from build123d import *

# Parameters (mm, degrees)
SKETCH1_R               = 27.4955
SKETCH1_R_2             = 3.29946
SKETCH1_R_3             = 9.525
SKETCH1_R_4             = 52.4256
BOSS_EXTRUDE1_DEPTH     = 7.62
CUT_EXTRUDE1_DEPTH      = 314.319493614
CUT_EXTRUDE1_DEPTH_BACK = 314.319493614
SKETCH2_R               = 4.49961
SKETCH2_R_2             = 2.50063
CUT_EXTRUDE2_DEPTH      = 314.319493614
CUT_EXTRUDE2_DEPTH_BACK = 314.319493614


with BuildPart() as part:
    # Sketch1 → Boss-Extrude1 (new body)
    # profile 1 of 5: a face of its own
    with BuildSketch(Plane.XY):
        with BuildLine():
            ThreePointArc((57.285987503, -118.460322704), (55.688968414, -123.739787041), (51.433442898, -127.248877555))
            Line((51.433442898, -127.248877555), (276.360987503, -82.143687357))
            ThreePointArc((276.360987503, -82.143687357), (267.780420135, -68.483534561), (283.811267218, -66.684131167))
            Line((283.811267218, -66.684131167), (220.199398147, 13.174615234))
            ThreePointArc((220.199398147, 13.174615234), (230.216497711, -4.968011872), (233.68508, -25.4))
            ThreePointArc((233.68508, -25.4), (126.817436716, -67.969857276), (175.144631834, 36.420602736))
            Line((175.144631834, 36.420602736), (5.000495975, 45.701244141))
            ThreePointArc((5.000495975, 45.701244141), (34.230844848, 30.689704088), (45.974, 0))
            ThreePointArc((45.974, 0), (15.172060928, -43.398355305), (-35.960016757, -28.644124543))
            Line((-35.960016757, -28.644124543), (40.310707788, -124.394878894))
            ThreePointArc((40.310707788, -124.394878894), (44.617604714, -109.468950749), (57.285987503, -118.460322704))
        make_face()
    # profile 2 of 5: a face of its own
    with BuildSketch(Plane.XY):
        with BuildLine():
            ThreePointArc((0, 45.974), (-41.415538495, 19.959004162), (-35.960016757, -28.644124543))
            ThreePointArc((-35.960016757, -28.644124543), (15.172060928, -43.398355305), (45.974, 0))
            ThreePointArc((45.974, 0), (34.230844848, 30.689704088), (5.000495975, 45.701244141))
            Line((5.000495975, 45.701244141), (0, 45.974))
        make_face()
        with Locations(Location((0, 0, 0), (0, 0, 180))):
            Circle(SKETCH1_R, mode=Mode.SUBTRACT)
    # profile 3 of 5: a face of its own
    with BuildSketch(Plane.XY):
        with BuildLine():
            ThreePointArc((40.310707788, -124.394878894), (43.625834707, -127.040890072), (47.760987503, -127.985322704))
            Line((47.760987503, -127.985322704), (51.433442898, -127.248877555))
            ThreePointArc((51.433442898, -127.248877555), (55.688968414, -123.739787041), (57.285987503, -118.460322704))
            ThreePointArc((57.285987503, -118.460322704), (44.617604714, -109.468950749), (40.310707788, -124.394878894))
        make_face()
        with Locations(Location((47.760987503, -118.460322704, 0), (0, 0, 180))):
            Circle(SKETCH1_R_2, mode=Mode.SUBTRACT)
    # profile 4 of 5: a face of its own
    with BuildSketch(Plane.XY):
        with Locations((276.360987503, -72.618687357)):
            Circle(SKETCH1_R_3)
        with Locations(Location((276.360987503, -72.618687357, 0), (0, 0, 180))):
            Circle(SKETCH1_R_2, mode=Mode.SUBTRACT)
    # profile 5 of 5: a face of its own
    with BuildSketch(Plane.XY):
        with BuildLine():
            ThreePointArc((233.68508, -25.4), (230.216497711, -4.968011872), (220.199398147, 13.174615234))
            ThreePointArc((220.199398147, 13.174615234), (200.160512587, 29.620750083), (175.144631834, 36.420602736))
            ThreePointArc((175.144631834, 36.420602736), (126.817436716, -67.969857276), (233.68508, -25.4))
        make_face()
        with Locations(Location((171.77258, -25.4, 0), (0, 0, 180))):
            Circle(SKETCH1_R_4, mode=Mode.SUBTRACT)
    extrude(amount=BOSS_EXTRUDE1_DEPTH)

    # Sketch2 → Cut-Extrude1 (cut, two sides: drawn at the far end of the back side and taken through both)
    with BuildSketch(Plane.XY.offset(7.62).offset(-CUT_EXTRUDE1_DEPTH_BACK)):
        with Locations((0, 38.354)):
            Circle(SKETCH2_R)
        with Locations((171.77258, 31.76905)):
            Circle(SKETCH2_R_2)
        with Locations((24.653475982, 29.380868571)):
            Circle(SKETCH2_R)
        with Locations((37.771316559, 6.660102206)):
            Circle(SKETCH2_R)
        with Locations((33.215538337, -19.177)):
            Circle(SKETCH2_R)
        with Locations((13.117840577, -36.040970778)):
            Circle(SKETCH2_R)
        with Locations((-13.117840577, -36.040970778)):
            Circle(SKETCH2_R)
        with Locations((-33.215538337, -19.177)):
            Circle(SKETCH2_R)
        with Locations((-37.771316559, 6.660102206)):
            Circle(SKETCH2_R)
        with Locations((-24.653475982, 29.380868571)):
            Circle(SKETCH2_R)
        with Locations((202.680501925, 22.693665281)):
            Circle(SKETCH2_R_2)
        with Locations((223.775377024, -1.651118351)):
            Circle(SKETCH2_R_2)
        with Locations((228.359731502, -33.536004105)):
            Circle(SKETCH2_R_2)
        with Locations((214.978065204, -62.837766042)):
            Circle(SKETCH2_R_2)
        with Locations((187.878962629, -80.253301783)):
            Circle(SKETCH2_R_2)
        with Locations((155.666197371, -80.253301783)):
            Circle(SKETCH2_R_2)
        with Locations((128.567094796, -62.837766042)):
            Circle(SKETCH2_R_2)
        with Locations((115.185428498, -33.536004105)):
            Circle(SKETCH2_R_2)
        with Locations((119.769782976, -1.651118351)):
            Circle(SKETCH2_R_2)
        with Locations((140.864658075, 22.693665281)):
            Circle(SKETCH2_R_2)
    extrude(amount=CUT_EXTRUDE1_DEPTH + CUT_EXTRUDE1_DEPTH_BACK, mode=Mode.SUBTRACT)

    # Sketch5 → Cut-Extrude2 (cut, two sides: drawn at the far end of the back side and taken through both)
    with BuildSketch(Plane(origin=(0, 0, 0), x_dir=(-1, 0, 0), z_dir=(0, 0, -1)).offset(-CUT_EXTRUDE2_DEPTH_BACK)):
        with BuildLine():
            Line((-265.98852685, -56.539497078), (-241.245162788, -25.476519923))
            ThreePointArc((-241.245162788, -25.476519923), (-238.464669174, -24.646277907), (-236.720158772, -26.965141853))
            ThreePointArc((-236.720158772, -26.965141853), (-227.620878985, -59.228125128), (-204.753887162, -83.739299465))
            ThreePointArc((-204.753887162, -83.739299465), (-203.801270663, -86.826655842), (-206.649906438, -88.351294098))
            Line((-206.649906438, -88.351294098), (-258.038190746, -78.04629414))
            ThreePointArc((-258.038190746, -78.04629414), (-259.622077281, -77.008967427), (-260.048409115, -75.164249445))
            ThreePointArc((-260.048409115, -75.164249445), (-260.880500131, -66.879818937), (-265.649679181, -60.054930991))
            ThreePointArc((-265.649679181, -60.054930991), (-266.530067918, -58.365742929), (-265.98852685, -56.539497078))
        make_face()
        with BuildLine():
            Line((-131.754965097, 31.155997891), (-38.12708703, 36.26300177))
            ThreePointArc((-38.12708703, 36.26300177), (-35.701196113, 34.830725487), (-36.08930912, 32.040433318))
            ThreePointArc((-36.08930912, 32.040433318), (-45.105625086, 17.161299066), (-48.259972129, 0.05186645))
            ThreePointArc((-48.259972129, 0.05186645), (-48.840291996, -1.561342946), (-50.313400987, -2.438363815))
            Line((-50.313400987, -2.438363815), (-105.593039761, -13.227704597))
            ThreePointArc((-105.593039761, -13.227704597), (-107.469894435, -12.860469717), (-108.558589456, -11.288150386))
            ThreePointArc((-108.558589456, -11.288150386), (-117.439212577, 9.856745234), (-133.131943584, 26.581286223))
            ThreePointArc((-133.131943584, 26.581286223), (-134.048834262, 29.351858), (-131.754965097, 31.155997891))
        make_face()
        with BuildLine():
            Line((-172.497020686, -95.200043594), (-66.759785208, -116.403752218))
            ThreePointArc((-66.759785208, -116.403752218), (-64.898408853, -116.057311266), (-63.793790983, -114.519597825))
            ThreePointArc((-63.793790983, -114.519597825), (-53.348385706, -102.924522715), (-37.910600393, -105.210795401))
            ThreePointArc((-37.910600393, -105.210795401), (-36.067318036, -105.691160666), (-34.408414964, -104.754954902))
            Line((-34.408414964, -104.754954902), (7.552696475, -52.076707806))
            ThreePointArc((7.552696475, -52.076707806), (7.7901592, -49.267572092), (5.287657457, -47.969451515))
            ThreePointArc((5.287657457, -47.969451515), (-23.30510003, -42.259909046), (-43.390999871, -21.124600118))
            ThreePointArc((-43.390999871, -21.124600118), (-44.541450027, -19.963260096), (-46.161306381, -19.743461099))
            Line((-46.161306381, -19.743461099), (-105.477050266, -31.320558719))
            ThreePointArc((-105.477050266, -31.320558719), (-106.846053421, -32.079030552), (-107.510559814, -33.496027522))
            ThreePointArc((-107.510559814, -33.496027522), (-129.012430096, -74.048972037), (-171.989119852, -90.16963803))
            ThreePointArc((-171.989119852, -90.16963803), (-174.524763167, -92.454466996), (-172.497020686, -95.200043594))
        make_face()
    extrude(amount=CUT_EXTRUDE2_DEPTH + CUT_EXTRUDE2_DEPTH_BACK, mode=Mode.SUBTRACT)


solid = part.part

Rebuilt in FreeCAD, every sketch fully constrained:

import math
import FreeCAD as App
import Part
import Sketcher
Q = App.Units.Quantity

doc = App.newDocument("Part")
body = doc.addObject("PartDesign::Body", "Body")

# Sketch on XY plane
sketch1 = doc.addObject("Sketcher::SketchObject", "Sketch")
body.addObject(sketch1)
sketch1.AttachmentSupport = (doc.XY_Plane, [""])
sketch1.MapMode = "FlatFace"
sketch1.addGeometry(Part.LineSegment(App.Vector(51.433443, -127.248878, 0), App.Vector(276.360988, -82.143687, 0)), False)
sketch1.addGeometry(Part.ArcOfCircle(Part.Circle(App.Vector(276.360988, -72.618687, 0), App.Vector(0, 0, 1), 9.525), math.radians(-90), math.radians(38.539243)), False)
sketch1.addGeometry(Part.LineSegment(App.Vector(283.811267, -66.684131, 0), App.Vector(220.199398, 13.174615, 0)), False)
sketch1.addGeometry(Part.ArcOfCircle(Part.Circle(App.Vector(171.77258, -25.4, 0), App.Vector(0, 0, 1), 61.9125), math.radians(38.539243), math.radians(86.877852)), False)
sketch1.addGeometry(Part.LineSegment(App.Vector(175.144632, 36.420603, 0), App.Vector(5.000496, 45.701244, 0)), False)
sketch1.addGeometry(Part.LineSegment(App.Vector(5.000496, 45.701244, 0), App.Vector(0, 45.974, 0)), False)
sketch1.addGeometry(Part.ArcOfCircle(Part.Circle(App.Vector(0, 0, 0), App.Vector(0, 0, 1), 45.974), math.radians(90), math.radians(218.539243)), False)
sketch1.addGeometry(Part.LineSegment(App.Vector(-35.960017, -28.644125, 0), App.Vector(40.310708, -124.394879, 0)), False)
sketch1.addGeometry(Part.ArcOfCircle(Part.Circle(App.Vector(47.760988, -118.460323, 0), App.Vector(0, 0, 1), 9.525), math.radians(-141.460757), math.radians(-90)), False)
sketch1.addGeometry(Part.LineSegment(App.Vector(47.760988, -127.985323, 0), App.Vector(51.433443, -127.248878, 0)), False)
sketch1.addGeometry(Part.Circle(App.Vector(47.760988, -118.460323, 0), App.Vector(0, 0, 1), 3.29946), False)
sketch1.addGeometry(Part.Circle(App.Vector(276.360988, -72.618687, 0), App.Vector(0, 0, 1), 3.29946), False)
sketch1.addGeometry(Part.Circle(App.Vector(171.77258, -25.4, 0), App.Vector(0, 0, 1), 52.4256), False)
sketch1.addGeometry(Part.Circle(App.Vector(0, 0, 0), App.Vector(0, 0, 1), 27.4955), False)
sketch1.addConstraint(Sketcher.Constraint("Coincident", 0, 2, 1, 1))
sketch1.addConstraint(Sketcher.Constraint("Tangent", 1, 2, 2, 1))
sketch1.addConstraint(Sketcher.Constraint("Tangent", 2, 2, 3, 1))
sketch1.addConstraint(Sketcher.Constraint("Tangent", 3, 2, 4, 1))
sketch1.addConstraint(Sketcher.Constraint("Coincident", 4, 2, 5, 1))
sketch1.addConstraint(Sketcher.Constraint("Coincident", 5, 2, 6, 1))
sketch1.addConstraint(Sketcher.Constraint("Tangent", 6, 2, 7, 1))
sketch1.addConstraint(Sketcher.Constraint("Tangent", 7, 2, 8, 1))
sketch1.addConstraint(Sketcher.Constraint("Coincident", 8, 2, 9, 1))
sketch1.addConstraint(Sketcher.Constraint("Coincident", 9, 2, 0, 1))
sketch1.addConstraint(Sketcher.Constraint("Coincident", 6, 3, -1, 1))
sketch1.addConstraint(Sketcher.Constraint("Coincident", 13, 3, -1, 1))
sketch1.addConstraint(Sketcher.Constraint("Coincident", 10, 3, 8, 3))
sketch1.addConstraint(Sketcher.Constraint("Coincident", 11, 3, 1, 3))
sketch1.addConstraint(Sketcher.Constraint("Coincident", 12, 3, 3, 3))
sketch1.addConstraint(Sketcher.Constraint("Equal", 1, 8))
sketch1.addConstraint(Sketcher.Constraint("Equal", 10, 11))
sketch1.addConstraint(Sketcher.Constraint("PointOnObject", 5, 2, -2))
sketch1.addConstraint(Sketcher.Constraint("Parallel", 4, 5))
sketch1.addConstraint(Sketcher.Constraint("Parallel", 2, 7))
sketch1.addConstraint(Sketcher.Constraint("Parallel", 0, 9))
sketch1.addConstraint(Sketcher.Constraint("Vertical", 11, 3, 0, 2))
sketch1.addConstraint(Sketcher.Constraint("Vertical", 10, 3, 8, 2))
sketch1.addConstraint(Sketcher.Constraint("Radius", 6, Q("1.81 in")))
sketch1.addConstraint(Sketcher.Constraint("Diameter", 12, Q("4.128 in")))
sketch1.addConstraint(Sketcher.Constraint("Diameter", 13, Q("2.165 in")))
sketch1.addConstraint(Sketcher.Constraint("DistanceY", 3, 3, -1, 1, Q("1 in")))
sketch1.addConstraint(Sketcher.Constraint("Radius", 1, Q("0.375 in")))
sketch1.addConstraint(Sketcher.Constraint("Radius", 3, Q("2.4375 in")))
sketch1.addConstraint(Sketcher.Constraint("DistanceX", 8, 3, 1, 3, Q("9 in")))
sketch1.addConstraint(Sketcher.Constraint("Diameter", 10, Q("0.2598 in")))
sketch1.addConstraint(Sketcher.Constraint("DistanceX", -1, 1, 3, 3, Q("6.7627 in")))
sketch1.addConstraint(Sketcher.Constraint("DistanceX", -1, 1, 2, 2, Q("220.199398 mm")))
sketch1.addConstraint(Sketcher.Constraint("DistanceY", 8, 3, 6, 2, Q("89.816198 mm")))
sketch1.addConstraint(Sketcher.Constraint("DistanceY", 9, 2, 7, 2, Q("2.853999 mm")))
sketch1.addConstraint(Sketcher.Constraint("Distance", 5, Q("5.007929 mm")))
pad1 = doc.addObject("PartDesign::Pad", "Pad")
body.addObject(pad1)
pad1.Profile = sketch1
pad1.Length = Q("0.3 in")

# Sketch on XY plane
sketch2 = doc.addObject("Sketcher::SketchObject", "Sketch001")
body.addObject(sketch2)
sketch2.AttachmentSupport = (doc.XY_Plane, [""])
sketch2.MapMode = "FlatFace"
sketch2.AttachmentOffset = App.Placement(App.Vector(0, 0, 0.3 * 25.4), App.Rotation())
sketch2.addGeometry(Part.Circle(App.Vector(0, 38.354, 0), App.Vector(0, 0, 1), 4.49961), False)
sketch2.addGeometry(Part.Circle(App.Vector(171.77258, 31.76905, 0), App.Vector(0, 0, 1), 2.50063), False)
sketch2.addGeometry(Part.Circle(App.Vector(24.653476, 29.380869, 0), App.Vector(0, 0, 1), 4.49961), False)
sketch2.addGeometry(Part.Circle(App.Vector(37.771317, 6.660102, 0), App.Vector(0, 0, 1), 4.49961), False)
sketch2.addGeometry(Part.Circle(App.Vector(33.215538, -19.177, 0), App.Vector(0, 0, 1), 4.49961), False)
sketch2.addGeometry(Part.Circle(App.Vector(13.117841, -36.040971, 0), App.Vector(0, 0, 1), 4.49961), False)
sketch2.addGeometry(Part.Circle(App.Vector(-13.117841, -36.040971, 0), App.Vector(0, 0, 1), 4.49961), False)
sketch2.addGeometry(Part.Circle(App.Vector(-33.215538, -19.177, 0), App.Vector(0, 0, 1), 4.49961), False)
sketch2.addGeometry(Part.Circle(App.Vector(-37.771317, 6.660102, 0), App.Vector(0, 0, 1), 4.49961), False)
sketch2.addGeometry(Part.Circle(App.Vector(-24.653476, 29.380869, 0), App.Vector(0, 0, 1), 4.49961), False)
sketch2.addGeometry(Part.Circle(App.Vector(202.680502, 22.693665, 0), App.Vector(0, 0, 1), 2.50063), False)
sketch2.addGeometry(Part.Circle(App.Vector(223.775377, -1.651118, 0), App.Vector(0, 0, 1), 2.50063), False)
sketch2.addGeometry(Part.Circle(App.Vector(228.359732, -33.536004, 0), App.Vector(0, 0, 1), 2.50063), False)
sketch2.addGeometry(Part.Circle(App.Vector(214.978065, -62.837766, 0), App.Vector(0, 0, 1), 2.50063), False)
sketch2.addGeometry(Part.Circle(App.Vector(187.878963, -80.253302, 0), App.Vector(0, 0, 1), 2.50063), False)
sketch2.addGeometry(Part.Circle(App.Vector(155.666197, -80.253302, 0), App.Vector(0, 0, 1), 2.50063), False)
sketch2.addGeometry(Part.Circle(App.Vector(128.567095, -62.837766, 0), App.Vector(0, 0, 1), 2.50063), False)
sketch2.addGeometry(Part.Circle(App.Vector(115.185428, -33.536004, 0), App.Vector(0, 0, 1), 2.50063), False)
sketch2.addGeometry(Part.Circle(App.Vector(119.769783, -1.651118, 0), App.Vector(0, 0, 1), 2.50063), False)
sketch2.addGeometry(Part.Circle(App.Vector(140.864658, 22.693665, 0), App.Vector(0, 0, 1), 2.50063), False)
sketch2.addConstraint(Sketcher.Constraint("Equal", 0, 2))
sketch2.addConstraint(Sketcher.Constraint("Equal", 2, 3))
sketch2.addConstraint(Sketcher.Constraint("Equal", 3, 4))
sketch2.addConstraint(Sketcher.Constraint("Equal", 4, 5))
sketch2.addConstraint(Sketcher.Constraint("Equal", 5, 6))
sketch2.addConstraint(Sketcher.Constraint("Equal", 6, 7))
sketch2.addConstraint(Sketcher.Constraint("Equal", 7, 8))
sketch2.addConstraint(Sketcher.Constraint("Equal", 8, 9))
sketch2.addConstraint(Sketcher.Constraint("Equal", 1, 10))
sketch2.addConstraint(Sketcher.Constraint("Equal", 10, 11))
sketch2.addConstraint(Sketcher.Constraint("Equal", 11, 12))
sketch2.addConstraint(Sketcher.Constraint("Equal", 12, 13))
sketch2.addConstraint(Sketcher.Constraint("Equal", 13, 14))
sketch2.addConstraint(Sketcher.Constraint("Equal", 14, 15))
sketch2.addConstraint(Sketcher.Constraint("Equal", 15, 16))
sketch2.addConstraint(Sketcher.Constraint("Equal", 16, 17))
sketch2.addConstraint(Sketcher.Constraint("Equal", 17, 18))
sketch2.addConstraint(Sketcher.Constraint("Equal", 18, 19))
sketch2.addConstraint(Sketcher.Constraint("Symmetric", 5, 3, 6, 3, -2))
sketch2.addConstraint(Sketcher.Constraint("Symmetric", 4, 3, 7, 3, -2))
sketch2.addConstraint(Sketcher.Constraint("Symmetric", 3, 3, 8, 3, -2))
sketch2.addConstraint(Sketcher.Constraint("Symmetric", 2, 3, 9, 3, -2))
sketch2.addConstraint(Sketcher.Constraint("PointOnObject", 0, 3, -2))
sketch2.addConstraint(Sketcher.Constraint("Horizontal", 14, 3, 15, 3))
sketch2.addConstraint(Sketcher.Constraint("Horizontal", 13, 3, 16, 3))
sketch2.addConstraint(Sketcher.Constraint("Horizontal", 12, 3, 17, 3))
sketch2.addConstraint(Sketcher.Constraint("Horizontal", 11, 3, 18, 3))
sketch2.addConstraint(Sketcher.Constraint("Horizontal", 10, 3, 19, 3))
sketch2.addConstraint(Sketcher.Constraint("Diameter", 0, Q("0.3543 in")))
sketch2.addConstraint(Sketcher.Constraint("Diameter", 1, Q("0.1969 in")))
sketch2.addConstraint(Sketcher.Constraint("DistanceY", -1, 1, 0, 3, Q("1.51 in")))
sketch2.addConstraint(Sketcher.Constraint("DistanceY", 4, 3, -1, 1, Q("0.755 in")))
sketch2.addConstraint(Sketcher.Constraint("DistanceX", -1, 1, 1, 3, Q("6.7627 in")))
sketch2.addConstraint(Sketcher.Constraint("DistanceX", -1, 1, 10, 3, Q("202.680502 mm")))
sketch2.addConstraint(Sketcher.Constraint("DistanceY", 14, 3, -1, 1, Q("80.253302 mm")))
sketch2.addConstraint(Sketcher.Constraint("DistanceX", 2, 3, 11, 3, Q("199.121901 mm")))
sketch2.addConstraint(Sketcher.Constraint("DistanceY", -1, 1, 1, 3, Q("31.76905 mm")))
sketch2.addConstraint(Sketcher.Constraint("DistanceY", -1, 1, 2, 3, Q("29.380869 mm")))
sketch2.addConstraint(Sketcher.Constraint("DistanceX", -1, 1, 4, 3, Q("33.215538 mm")))
sketch2.addConstraint(Sketcher.Constraint("DistanceX", -1, 1, 5, 3, Q("13.117841 mm")))
sketch2.addConstraint(Sketcher.Constraint("DistanceY", 5, 3, -1, 1, Q("36.040971 mm")))
sketch2.addConstraint(Sketcher.Constraint("DistanceY", 11, 3, -1, 1, Q("1.651118 mm")))
sketch2.addConstraint(Sketcher.Constraint("DistanceX", -1, 1, 12, 3, Q("228.359732 mm")))
sketch2.addConstraint(Sketcher.Constraint("DistanceX", -1, 1, 17, 3, Q("115.185428 mm")))
sketch2.addConstraint(Sketcher.Constraint("DistanceX", -1, 1, 19, 3, Q("140.864658 mm")))
sketch2.addConstraint(Sketcher.Constraint("DistanceX", 2, 3, 3, 3, Q("13.117841 mm")))
sketch2.addConstraint(Sketcher.Constraint("DistanceX", 4, 3, 3, 3, Q("4.555778 mm")))
sketch2.addConstraint(Sketcher.Constraint("DistanceY", 11, 3, 3, 3, Q("8.311221 mm")))
sketch2.addConstraint(Sketcher.Constraint("DistanceY", 12, 3, 10, 3, Q("56.229669 mm")))
sketch2.addConstraint(Sketcher.Constraint("DistanceY", 13, 3, 12, 3, Q("29.301762 mm")))
sketch2.addConstraint(Sketcher.Constraint("DistanceX", 13, 3, 11, 3, Q("8.797312 mm")))
sketch2.addConstraint(Sketcher.Constraint("DistanceX", 14, 3, 12, 3, Q("40.480769 mm")))
sketch2.addConstraint(Sketcher.Constraint("DistanceX", 15, 3, 11, 3, Q("68.10918 mm")))
sketch2.addConstraint(Sketcher.Constraint("DistanceX", 16, 3, 13, 3, Q("86.41097 mm")))
sketch2.addConstraint(Sketcher.Constraint("DistanceX", 18, 3, 16, 3, Q("8.797312 mm")))
sketch2.addConstraint(Sketcher.Constraint("DistanceY", -1, 1, 10, 3, Q("22.693665 mm")))
pocket1 = doc.addObject("PartDesign::Pocket", "Pocket")
body.addObject(pocket1)
pocket1.Profile = sketch2
pocket1.Type = "ThroughAll"
pocket1.Midplane = True

# Sketch on XY plane
sketch3 = doc.addObject("Sketcher::SketchObject", "Sketch002")
body.addObject(sketch3)
sketch3.AttachmentSupport = (doc.XY_Plane, [""])
sketch3.MapMode = "FlatFace"
sketch3.addGeometry(Part.LineSegment(App.Vector(241.245163, -25.47652, 0), App.Vector(265.988527, -56.539497, 0)), False)
sketch3.addGeometry(Part.ArcOfCircle(Part.Circle(App.Vector(264.001786, -58.122045, 0), App.Vector(0, 0, 1), 2.54), math.radians(-49.550544), math.radians(38.539243)), False)
sketch3.addGeometry(Part.ArcOfCircle(Part.Circle(App.Vector(276.360987, -72.618687, 0), App.Vector(0, 0, 1), 16.51), math.radians(130.449456), math.radians(188.869419)), False)
sketch3.addGeometry(Part.ArcOfCircle(Part.Circle(App.Vector(257.538782, -75.555874, 0), App.Vector(0, 0, 1), 2.54), math.radians(-78.660757), math.radians(8.869419)), False)
sketch3.addGeometry(Part.LineSegment(App.Vector(258.038191, -78.046294, 0), App.Vector(206.649906, -88.351294, 0)), False)
sketch3.addGeometry(Part.ArcOfCircle(Part.Circle(App.Vector(206.150497, -85.860874, 0), App.Vector(0, 0, 1), 2.54), math.radians(123.356485), math.radians(281.339243)), False)
sketch3.addGeometry(Part.ArcOfCircle(Part.Circle(App.Vector(165.648802, -24.335203, 0), App.Vector(0, 0, 1), 71.12), math.radians(-56.643515), math.radians(-2.119218)), False)
sketch3.addGeometry(Part.ArcOfCircle(Part.Circle(App.Vector(239.258422, -27.059068, 0), App.Vector(0, 0, 1), 2.54), math.radians(38.539243), math.radians(177.880782)), False)
sketch3.addGeometry(Part.LineSegment(App.Vector(38.127087, 36.263002, 0), App.Vector(131.754965, 31.155998, 0)), False)
sketch3.addGeometry(Part.ArcOfCircle(Part.Circle(App.Vector(131.616625, 28.619768, 0), App.Vector(0, 0, 1), 2.54), math.radians(-53.374486), math.radians(86.877852)), False)
sketch3.addGeometry(Part.ArcOfCircle(Part.Circle(App.Vector(171.77258, -25.4, 0), App.Vector(0, 0, 1), 64.77), math.radians(126.625514), math.radians(167.41567)), False)
sketch3.addGeometry(Part.ArcOfCircle(Part.Circle(App.Vector(106.079609, -10.734745, 0), App.Vector(0, 0, 1), 2.54), math.radians(-101.044005), math.radians(-12.58433)), False)
sketch3.addGeometry(Part.LineSegment(App.Vector(105.59304, -13.227705, 0), App.Vector(50.313401, -2.438364, 0)), False)
sketch3.addGeometry(Part.ArcOfCircle(Part.Circle(App.Vector(50.799971, 0.054596, 0), App.Vector(0, 0, 1), 2.54), math.radians(-179.938423), math.radians(-101.044005)), False)
sketch3.addGeometry(Part.ArcOfCircle(Part.Circle(App.Vector(0, 0, 0), App.Vector(0, 0, 1), 48.26), math.radians(0.061577), math.radians(41.598975)), False)
sketch3.addGeometry(Part.ArcOfCircle(Part.Circle(App.Vector(37.988746, 33.726772, 0), App.Vector(0, 0, 1), 2.54), math.radians(86.877852), math.radians(221.598975)), False)
sketch3.addGeometry(Part.LineSegment(App.Vector(172.497021, -95.200044, 0), App.Vector(66.759785, -116.403752, 0)), False)
sketch3.addGeometry(Part.ArcOfCircle(Part.Circle(App.Vector(66.260376, -113.913332, 0), App.Vector(0, 0, 1), 2.54), math.radians(-166.190932), math.radians(-78.660757)), False)
sketch3.addGeometry(Part.ArcOfCircle(Part.Circle(App.Vector(47.760988, -118.460323, 0), App.Vector(0, 0, 1), 16.51), math.radians(13.809068), math.radians(126.62903)), False)
sketch3.addGeometry(Part.ArcOfCircle(Part.Circle(App.Vector(36.395156, -103.172407, 0), App.Vector(0, 0, 1), 2.54), math.radians(-141.460757), math.radians(-53.37097)), False)
sketch3.addGeometry(Part.LineSegment(App.Vector(34.408415, -104.754955, 0), App.Vector(-7.552696, -52.076708, 0)), False)
sketch3.addGeometry(Part.ArcOfCircle(Part.Circle(App.Vector(-5.565955, -50.494159, 0), App.Vector(0, 0, 1), 2.54), math.radians(83.709699), math.radians(218.539243)), False)
sketch3.addGeometry(Part.ArcOfCircle(Part.Circle(App.Vector(0, 0, 0), App.Vector(0, 0, 1), 48.26), math.radians(-96.290301), math.radians(-25.958806)), False)
sketch3.addGeometry(Part.ArcOfCircle(Part.Circle(App.Vector(45.674737, -22.236421, 0), App.Vector(0, 0, 1), 2.54), math.radians(78.955995), math.radians(154.041194)), False)
sketch3.addGeometry(Part.LineSegment(App.Vector(46.161306, -19.743461, 0), App.Vector(105.47705, -31.320559, 0)), False)
sketch3.addGeometry(Part.ArcOfCircle(Part.Circle(App.Vector(104.990481, -33.813519, 0), App.Vector(0, 0, 1), 2.54), math.radians(7.180557), math.radians(78.955995)), False)
sketch3.addGeometry(Part.ArcOfCircle(Part.Circle(App.Vector(171.77258, -25.4, 0), App.Vector(0, 0, 1), 64.77), math.radians(-172.819443), math.radians(-89.808448)), False)
sketch3.addGeometry(Part.ArcOfCircle(Part.Circle(App.Vector(171.997612, -92.709624, 0), App.Vector(0, 0, 1), 2.54), math.radians(-78.660757), math.radians(90.191552)), False)
sketch3.addConstraint(Sketcher.Constraint("Tangent", 0, 2, 1, 2))
sketch3.addConstraint(Sketcher.Constraint("Tangent", 1, 1, 2, 1))
sketch3.addConstraint(Sketcher.Constraint("Tangent", 2, 2, 3, 2))
sketch3.addConstraint(Sketcher.Constraint("Tangent", 3, 1, 4, 1))
sketch3.addConstraint(Sketcher.Constraint("Tangent", 4, 2, 5, 2))
sketch3.addConstraint(Sketcher.Constraint("Tangent", 5, 1, 6, 1))
sketch3.addConstraint(Sketcher.Constraint("Tangent", 6, 2, 7, 2))
sketch3.addConstraint(Sketcher.Constraint("Tangent", 7, 1, 0, 1))
sketch3.addConstraint(Sketcher.Constraint("Tangent", 8, 2, 9, 2))
sketch3.addConstraint(Sketcher.Constraint("Tangent", 9, 1, 10, 1))
sketch3.addConstraint(Sketcher.Constraint("Tangent", 10, 2, 11, 2))
sketch3.addConstraint(Sketcher.Constraint("Tangent", 11, 1, 12, 1))
sketch3.addConstraint(Sketcher.Constraint("Tangent", 12, 2, 13, 2))
sketch3.addConstraint(Sketcher.Constraint("Tangent", 13, 1, 14, 1))
sketch3.addConstraint(Sketcher.Constraint("Tangent", 14, 2, 15, 2))
sketch3.addConstraint(Sketcher.Constraint("Tangent", 15, 1, 8, 1))
sketch3.addConstraint(Sketcher.Constraint("Tangent", 16, 2, 17, 2))
sketch3.addConstraint(Sketcher.Constraint("Tangent", 17, 1, 18, 1))
sketch3.addConstraint(Sketcher.Constraint("Tangent", 18, 2, 19, 2))
sketch3.addConstraint(Sketcher.Constraint("Tangent", 19, 1, 20, 1))
sketch3.addConstraint(Sketcher.Constraint("Tangent", 20, 2, 21, 2))
sketch3.addConstraint(Sketcher.Constraint("Tangent", 21, 1, 22, 1))
sketch3.addConstraint(Sketcher.Constraint("Tangent", 22, 2, 23, 2))
sketch3.addConstraint(Sketcher.Constraint("Tangent", 23, 1, 24, 1))
sketch3.addConstraint(Sketcher.Constraint("Tangent", 24, 2, 25, 2))
sketch3.addConstraint(Sketcher.Constraint("Tangent", 25, 1, 26, 1))
sketch3.addConstraint(Sketcher.Constraint("Tangent", 26, 2, 27, 2))
sketch3.addConstraint(Sketcher.Constraint("Tangent", 27, 1, 16, 1))
sketch3.addConstraint(Sketcher.Constraint("Coincident", 14, 3, -1, 1))
sketch3.addConstraint(Sketcher.Constraint("Coincident", 22, 3, -1, 1))
sketch3.addConstraint(Sketcher.Constraint("Coincident", 26, 3, 10, 3))
sketch3.addConstraint(Sketcher.Constraint("Equal", 1, 3))
sketch3.addConstraint(Sketcher.Constraint("Equal", 3, 5))
sketch3.addConstraint(Sketcher.Constraint("Equal", 5, 7))
sketch3.addConstraint(Sketcher.Constraint("Equal", 7, 9))
sketch3.addConstraint(Sketcher.Constraint("Equal", 9, 11))
sketch3.addConstraint(Sketcher.Constraint("Equal", 11, 13))
sketch3.addConstraint(Sketcher.Constraint("Equal", 13, 15))
sketch3.addConstraint(Sketcher.Constraint("Equal", 15, 17))
sketch3.addConstraint(Sketcher.Constraint("Equal", 2, 18))
sketch3.addConstraint(Sketcher.Constraint("Equal", 17, 19))
sketch3.addConstraint(Sketcher.Constraint("Equal", 19, 21))
sketch3.addConstraint(Sketcher.Constraint("Equal", 14, 22))
sketch3.addConstraint(Sketcher.Constraint("Equal", 21, 23))
sketch3.addConstraint(Sketcher.Constraint("Equal", 23, 25))
sketch3.addConstraint(Sketcher.Constraint("Equal", 10, 26))
sketch3.addConstraint(Sketcher.Constraint("Equal", 25, 27))
sketch3.addConstraint(Sketcher.Constraint("Parallel", 4, 16))
sketch3.addConstraint(Sketcher.Constraint("Parallel", 0, 20))
sketch3.addConstraint(Sketcher.Constraint("Parallel", 12, 24))
sketch3.addConstraint(Sketcher.Constraint("Radius", 1, Q("0.1 in")))
sketch3.addConstraint(Sketcher.Constraint("Radius", 6, Q("2.8 in")))
sketch3.addConstraint(Sketcher.Constraint("Radius", 14, Q("1.9 in")))
sketch3.addConstraint(Sketcher.Constraint("Radius", 2, Q("0.65 in")))
sketch3.addConstraint(Sketcher.Constraint("Radius", 10, Q("2.55 in")))
sketch3.addConstraint(Sketcher.Constraint("DistanceY", 10, 3, -1, 1, Q("1 in")))
sketch3.addConstraint(Sketcher.Constraint("DistanceX", -1, 1, 10, 3, Q("6.7627 in")))
sketch3.addConstraint(Sketcher.Constraint("DistanceX", -1, 1, 6, 3, Q("165.648802 mm")))
sketch3.addConstraint(Sketcher.Constraint("DistanceY", 5, 1, -1, 1, Q("83.739299 mm")))
sketch3.addConstraint(Sketcher.Constraint("DistanceX", -1, 1, 12, 2, Q("50.313401 mm")))
sketch3.addConstraint(Sketcher.Constraint("DistanceY", -1, 1, 15, 1, Q("36.263002 mm")))
sketch3.addConstraint(Sketcher.Constraint("DistanceX", -1, 1, 18, 2, Q("37.9106 mm")))
sketch3.addConstraint(Sketcher.Constraint("DistanceX", -1, 1, 22, 2, Q("43.391 mm")))
sketch3.addConstraint(Sketcher.Constraint("DistanceX", 1, 3, 2, 3, Q("12.359202 mm")))
sketch3.addConstraint(Sketcher.Constraint("DistanceY", 5, 3, 3, 3, Q("10.305 mm")))
sketch3.addConstraint(Sketcher.Constraint("DistanceY", 6, 3, 13, 3, Q("24.389799 mm")))
sketch3.addConstraint(Sketcher.Constraint("DistanceX", 21, 3, 15, 3, Q("43.554702 mm")))
sketch3.addConstraint(Sketcher.Constraint("DistanceY", 6, 3, 8, 2, Q("55.491201 mm")))
sketch3.addConstraint(Sketcher.Constraint("DistanceX", -1, 1, 3, 3, Q("257.538782 mm")))
sketch3.addConstraint(Sketcher.Constraint("DistanceX", -1, 1, 7, 3, Q("239.258422 mm")))
sketch3.addConstraint(Sketcher.Constraint("DistanceY", 7, 3, -1, 1, Q("27.059068 mm")))
sketch3.addConstraint(Sketcher.Constraint("DistanceX", -1, 1, 27, 3, Q("171.997612 mm")))
sketch3.addConstraint(Sketcher.Constraint("DistanceX", -1, 1, 1, 1, Q("265.649679 mm")))
sketch3.addConstraint(Sketcher.Constraint("DistanceX", -1, 1, 17, 1, Q("63.793791 mm")))
pocket2 = doc.addObject("PartDesign::Pocket", "Pocket001")
body.addObject(pocket2)
pocket2.Profile = sketch3
pocket2.Type = "ThroughAll"
pocket2.Midplane = True

doc.recompute()
